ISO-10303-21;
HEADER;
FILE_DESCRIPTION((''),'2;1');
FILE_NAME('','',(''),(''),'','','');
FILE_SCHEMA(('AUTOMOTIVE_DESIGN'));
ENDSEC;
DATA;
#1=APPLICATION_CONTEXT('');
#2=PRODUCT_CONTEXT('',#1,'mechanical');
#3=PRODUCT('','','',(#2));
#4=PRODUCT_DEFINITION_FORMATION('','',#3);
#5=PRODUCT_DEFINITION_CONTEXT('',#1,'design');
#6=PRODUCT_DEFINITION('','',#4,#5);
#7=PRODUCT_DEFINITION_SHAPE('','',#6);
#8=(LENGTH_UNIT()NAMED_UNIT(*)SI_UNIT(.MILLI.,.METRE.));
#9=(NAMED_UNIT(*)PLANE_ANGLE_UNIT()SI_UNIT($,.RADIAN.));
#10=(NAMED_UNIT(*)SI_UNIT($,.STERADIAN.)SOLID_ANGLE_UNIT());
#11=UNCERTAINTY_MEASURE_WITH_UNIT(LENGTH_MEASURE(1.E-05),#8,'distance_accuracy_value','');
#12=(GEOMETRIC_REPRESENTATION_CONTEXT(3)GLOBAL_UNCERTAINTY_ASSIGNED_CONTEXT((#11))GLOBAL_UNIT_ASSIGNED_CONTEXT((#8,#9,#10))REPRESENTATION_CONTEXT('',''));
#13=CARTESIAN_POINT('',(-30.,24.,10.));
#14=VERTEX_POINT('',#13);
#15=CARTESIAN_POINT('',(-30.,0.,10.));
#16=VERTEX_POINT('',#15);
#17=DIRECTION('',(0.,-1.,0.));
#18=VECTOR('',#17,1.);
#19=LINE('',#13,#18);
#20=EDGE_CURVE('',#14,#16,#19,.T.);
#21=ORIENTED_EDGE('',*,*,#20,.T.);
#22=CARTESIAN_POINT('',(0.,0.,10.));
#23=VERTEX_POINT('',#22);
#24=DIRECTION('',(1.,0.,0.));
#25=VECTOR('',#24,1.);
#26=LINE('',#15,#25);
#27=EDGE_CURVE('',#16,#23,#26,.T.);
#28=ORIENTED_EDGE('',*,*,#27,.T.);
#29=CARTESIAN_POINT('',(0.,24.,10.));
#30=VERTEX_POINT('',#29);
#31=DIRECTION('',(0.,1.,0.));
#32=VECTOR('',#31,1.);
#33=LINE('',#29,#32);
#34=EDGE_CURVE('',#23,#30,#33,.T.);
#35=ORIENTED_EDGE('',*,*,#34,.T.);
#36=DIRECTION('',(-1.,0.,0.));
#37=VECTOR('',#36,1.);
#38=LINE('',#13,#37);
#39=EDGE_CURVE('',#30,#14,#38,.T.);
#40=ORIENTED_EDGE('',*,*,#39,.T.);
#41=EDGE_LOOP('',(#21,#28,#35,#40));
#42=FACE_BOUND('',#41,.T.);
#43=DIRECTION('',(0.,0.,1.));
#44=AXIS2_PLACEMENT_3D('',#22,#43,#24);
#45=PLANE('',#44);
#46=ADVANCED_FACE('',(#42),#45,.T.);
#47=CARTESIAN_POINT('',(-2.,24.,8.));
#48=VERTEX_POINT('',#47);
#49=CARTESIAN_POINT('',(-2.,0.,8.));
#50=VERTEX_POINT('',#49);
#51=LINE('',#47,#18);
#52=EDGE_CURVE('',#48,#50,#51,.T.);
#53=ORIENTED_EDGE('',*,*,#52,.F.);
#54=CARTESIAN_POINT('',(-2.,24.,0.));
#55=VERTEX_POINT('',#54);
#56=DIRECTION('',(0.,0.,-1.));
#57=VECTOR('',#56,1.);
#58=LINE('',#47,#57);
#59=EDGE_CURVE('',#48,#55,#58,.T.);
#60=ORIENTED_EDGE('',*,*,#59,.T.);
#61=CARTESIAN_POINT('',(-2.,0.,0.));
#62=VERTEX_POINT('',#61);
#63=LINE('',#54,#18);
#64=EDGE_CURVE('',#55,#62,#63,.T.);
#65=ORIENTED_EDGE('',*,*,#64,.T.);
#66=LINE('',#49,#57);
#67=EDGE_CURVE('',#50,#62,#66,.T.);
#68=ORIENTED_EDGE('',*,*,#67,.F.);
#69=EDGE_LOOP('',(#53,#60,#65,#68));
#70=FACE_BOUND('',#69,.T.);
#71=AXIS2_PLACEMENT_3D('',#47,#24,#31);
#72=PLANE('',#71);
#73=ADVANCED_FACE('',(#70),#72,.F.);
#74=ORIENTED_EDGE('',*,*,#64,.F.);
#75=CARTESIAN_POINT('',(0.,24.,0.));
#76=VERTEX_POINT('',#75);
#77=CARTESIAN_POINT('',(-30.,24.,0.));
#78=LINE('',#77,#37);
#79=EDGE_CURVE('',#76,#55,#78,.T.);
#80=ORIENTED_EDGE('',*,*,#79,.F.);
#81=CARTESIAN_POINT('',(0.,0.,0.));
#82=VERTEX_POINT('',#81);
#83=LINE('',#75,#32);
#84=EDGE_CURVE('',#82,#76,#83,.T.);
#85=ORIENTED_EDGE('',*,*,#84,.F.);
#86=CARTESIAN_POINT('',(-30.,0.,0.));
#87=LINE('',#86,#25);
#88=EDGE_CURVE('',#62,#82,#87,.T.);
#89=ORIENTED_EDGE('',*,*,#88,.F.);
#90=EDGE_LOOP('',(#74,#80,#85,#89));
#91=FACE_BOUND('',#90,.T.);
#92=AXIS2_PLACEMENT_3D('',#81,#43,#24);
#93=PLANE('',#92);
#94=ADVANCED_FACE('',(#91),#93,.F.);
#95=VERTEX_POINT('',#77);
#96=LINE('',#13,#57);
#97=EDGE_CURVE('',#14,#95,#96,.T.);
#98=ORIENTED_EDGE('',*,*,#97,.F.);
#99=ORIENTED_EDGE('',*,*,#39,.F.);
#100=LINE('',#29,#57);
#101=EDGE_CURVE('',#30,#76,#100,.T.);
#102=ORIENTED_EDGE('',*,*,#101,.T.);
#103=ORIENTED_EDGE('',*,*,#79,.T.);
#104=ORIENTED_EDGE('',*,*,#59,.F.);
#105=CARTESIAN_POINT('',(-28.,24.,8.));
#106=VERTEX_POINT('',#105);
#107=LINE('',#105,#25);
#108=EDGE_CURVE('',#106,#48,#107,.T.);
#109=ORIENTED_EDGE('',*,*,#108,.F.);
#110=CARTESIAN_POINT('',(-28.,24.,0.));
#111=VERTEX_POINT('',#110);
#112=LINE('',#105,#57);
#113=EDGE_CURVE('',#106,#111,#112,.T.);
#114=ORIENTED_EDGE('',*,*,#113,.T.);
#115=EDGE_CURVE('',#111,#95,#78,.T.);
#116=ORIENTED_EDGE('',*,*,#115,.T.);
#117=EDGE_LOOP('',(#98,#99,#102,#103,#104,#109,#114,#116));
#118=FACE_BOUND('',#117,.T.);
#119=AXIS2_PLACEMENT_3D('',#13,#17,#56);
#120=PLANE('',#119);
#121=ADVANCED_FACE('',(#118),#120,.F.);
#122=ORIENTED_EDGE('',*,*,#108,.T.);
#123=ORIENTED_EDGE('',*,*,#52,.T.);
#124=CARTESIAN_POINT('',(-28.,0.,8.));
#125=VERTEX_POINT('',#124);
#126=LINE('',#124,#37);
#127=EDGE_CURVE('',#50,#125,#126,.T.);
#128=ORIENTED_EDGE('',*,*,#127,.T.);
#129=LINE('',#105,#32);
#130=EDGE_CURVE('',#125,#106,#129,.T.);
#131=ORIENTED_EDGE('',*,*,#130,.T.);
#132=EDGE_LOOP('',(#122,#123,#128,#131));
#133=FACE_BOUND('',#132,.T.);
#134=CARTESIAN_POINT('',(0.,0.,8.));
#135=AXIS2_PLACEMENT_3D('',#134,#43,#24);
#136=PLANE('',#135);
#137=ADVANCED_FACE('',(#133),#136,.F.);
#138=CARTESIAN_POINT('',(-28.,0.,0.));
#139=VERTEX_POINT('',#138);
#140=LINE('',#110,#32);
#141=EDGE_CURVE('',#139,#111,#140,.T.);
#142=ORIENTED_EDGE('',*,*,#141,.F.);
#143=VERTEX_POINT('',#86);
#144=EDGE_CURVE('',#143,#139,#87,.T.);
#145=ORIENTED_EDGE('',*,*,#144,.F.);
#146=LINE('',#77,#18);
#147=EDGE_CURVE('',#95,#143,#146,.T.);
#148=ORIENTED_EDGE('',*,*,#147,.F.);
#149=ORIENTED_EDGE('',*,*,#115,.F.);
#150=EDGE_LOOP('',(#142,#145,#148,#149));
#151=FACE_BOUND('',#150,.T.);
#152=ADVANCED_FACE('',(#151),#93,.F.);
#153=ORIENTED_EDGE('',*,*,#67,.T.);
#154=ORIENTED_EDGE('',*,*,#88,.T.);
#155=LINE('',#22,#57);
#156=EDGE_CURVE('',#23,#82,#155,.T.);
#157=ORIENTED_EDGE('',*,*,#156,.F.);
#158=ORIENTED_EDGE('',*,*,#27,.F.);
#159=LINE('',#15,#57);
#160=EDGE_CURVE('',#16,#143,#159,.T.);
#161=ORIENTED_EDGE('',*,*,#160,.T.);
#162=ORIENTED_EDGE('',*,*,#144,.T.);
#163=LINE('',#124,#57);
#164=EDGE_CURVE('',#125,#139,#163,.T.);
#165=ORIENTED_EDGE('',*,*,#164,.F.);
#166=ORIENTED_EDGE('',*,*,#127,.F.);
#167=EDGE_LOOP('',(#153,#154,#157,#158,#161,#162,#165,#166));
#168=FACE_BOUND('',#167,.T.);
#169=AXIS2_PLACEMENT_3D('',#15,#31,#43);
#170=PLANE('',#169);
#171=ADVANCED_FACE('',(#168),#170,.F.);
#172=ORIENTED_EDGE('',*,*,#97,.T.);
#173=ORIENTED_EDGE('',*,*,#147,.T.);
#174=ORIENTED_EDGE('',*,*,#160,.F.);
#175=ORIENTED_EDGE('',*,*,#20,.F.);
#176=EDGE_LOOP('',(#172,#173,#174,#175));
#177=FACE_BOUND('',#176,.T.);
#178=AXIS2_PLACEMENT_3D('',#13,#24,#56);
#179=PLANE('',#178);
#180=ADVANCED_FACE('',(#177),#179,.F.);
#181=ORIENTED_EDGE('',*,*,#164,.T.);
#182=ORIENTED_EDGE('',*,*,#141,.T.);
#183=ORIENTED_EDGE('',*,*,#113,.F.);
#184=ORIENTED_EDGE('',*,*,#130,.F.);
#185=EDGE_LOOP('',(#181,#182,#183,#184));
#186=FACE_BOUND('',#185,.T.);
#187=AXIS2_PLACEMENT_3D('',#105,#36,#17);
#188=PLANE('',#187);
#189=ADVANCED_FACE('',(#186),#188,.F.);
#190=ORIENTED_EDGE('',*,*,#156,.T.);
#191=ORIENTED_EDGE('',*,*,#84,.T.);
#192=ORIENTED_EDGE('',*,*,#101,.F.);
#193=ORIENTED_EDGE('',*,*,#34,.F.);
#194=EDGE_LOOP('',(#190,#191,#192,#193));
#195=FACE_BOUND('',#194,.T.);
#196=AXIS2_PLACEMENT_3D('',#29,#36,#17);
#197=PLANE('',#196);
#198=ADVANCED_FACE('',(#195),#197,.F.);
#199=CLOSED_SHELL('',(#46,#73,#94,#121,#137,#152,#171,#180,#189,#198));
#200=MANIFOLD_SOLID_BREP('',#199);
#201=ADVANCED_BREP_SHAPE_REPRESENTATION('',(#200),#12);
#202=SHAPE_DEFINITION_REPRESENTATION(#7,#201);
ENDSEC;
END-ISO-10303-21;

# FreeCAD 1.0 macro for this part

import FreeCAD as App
import Part
import Sketcher

V = App.Vector


def add_polygon(sketch, points):
    """Adds a closed chain of lines whose ends are joined by coincident constraints."""
    first, n = sketch.GeometryCount, len(points)
    for a, b in zip(points, points[1:] + points[:1]):
        sketch.addGeometry(Part.LineSegment(App.Vector(*a, 0), App.Vector(*b, 0)), False)
    for i in range(n):
        sketch.addConstraint(Sketcher.Constraint("Coincident", first + i, 2, first + (i + 1) % n, 1))

doc = App.newDocument("Part")
params = doc.addObject("Spreadsheet::Sheet", "Params")
for row, (alias, value) in enumerate([
    ("sketch1_width", "30 mm"),
    ("sketch1_height", "24 mm"),
    ("pad1_length", "10 mm"),
    ("sketch2_width", "26 mm"),
    ("sketch2_height", "24 mm"),
    ("pocket1_length", "8 mm"),
], start=1):
    params.set(f"A{row}", alias)
    params.set(f"B{row}", "=" + value)
    params.setAlias(f"B{row}", alias)

body = doc.addObject("PartDesign::Body", "Body")

# Sketch on XY plane
sketch1 = body.newObject("Sketcher::SketchObject", "Sketch")
sketch1.AttachmentSupport = (doc.getObject("XY_Plane"), [""])
sketch1.MapMode = "FlatFace"
add_polygon(sketch1, [(-30, 24), (-30, 0), (0, 0), (0, 24)])  # lines 0-3
sketch1.addConstraint(Sketcher.Constraint("Vertical", 0))
sketch1.addConstraint(Sketcher.Constraint("Horizontal", 1))
sketch1.addConstraint(Sketcher.Constraint("Vertical", 2))
sketch1.addConstraint(Sketcher.Constraint("Horizontal", 3))
sketch1.addConstraint(Sketcher.Constraint("Coincident", 1, 2, -1, 1))
sketch1.addConstraint(Sketcher.Constraint("DistanceX", 1, 1, 1, 2, 30.0))
sketch1.addConstraint(Sketcher.Constraint("DistanceY", 0, 2, 0, 1, 24.0))
sketch1.setExpression("Constraints[9]", "Params.sketch1_width")
sketch1.setExpression("Constraints[10]", "Params.sketch1_height")
pad1 = body.newObject("PartDesign::Pad", "Pad")
pad1.Profile = sketch1
pad1.setExpression("Length", "Params.pad1_length")

# Sketch on XY plane
sketch2 = body.newObject("Sketcher::SketchObject", "Sketch001")
sketch2.AttachmentSupport = (doc.getObject("XY_Plane"), [""])
sketch2.MapMode = "FlatFace"
add_polygon(sketch2, [(-2, 24), (-2, 0), (-28, 0), (-28, 24)])  # lines 0-3
sketch2.addConstraint(Sketcher.Constraint("Vertical", 0))
sketch2.addConstraint(Sketcher.Constraint("Horizontal", 1))
sketch2.addConstraint(Sketcher.Constraint("Vertical", 2))
sketch2.addConstraint(Sketcher.Constraint("Horizontal", 3))
sketch2.addConstraint(Sketcher.Constraint("PointOnObject", 0, 2, -1))
sketch2.addConstraint(Sketcher.Constraint("DistanceX", 1, 2, 1, 1, 26.0))
sketch2.addConstraint(Sketcher.Constraint("DistanceY", 0, 2, 0, 1, 24.0))
sketch2.addConstraint(Sketcher.Constraint("DistanceX", 0, 2, -1, 1, 2.0))
sketch2.setExpression("Constraints[9]", "Params.sketch2_width")
sketch2.setExpression("Constraints[10]", "Params.sketch2_height")
pocket1 = body.newObject("PartDesign::Pocket", "Pocket")
pocket1.Profile = sketch2
pocket1.setExpression("Length", "Params.pocket1_length")
pocket1.Reversed = True

doc.recompute()
